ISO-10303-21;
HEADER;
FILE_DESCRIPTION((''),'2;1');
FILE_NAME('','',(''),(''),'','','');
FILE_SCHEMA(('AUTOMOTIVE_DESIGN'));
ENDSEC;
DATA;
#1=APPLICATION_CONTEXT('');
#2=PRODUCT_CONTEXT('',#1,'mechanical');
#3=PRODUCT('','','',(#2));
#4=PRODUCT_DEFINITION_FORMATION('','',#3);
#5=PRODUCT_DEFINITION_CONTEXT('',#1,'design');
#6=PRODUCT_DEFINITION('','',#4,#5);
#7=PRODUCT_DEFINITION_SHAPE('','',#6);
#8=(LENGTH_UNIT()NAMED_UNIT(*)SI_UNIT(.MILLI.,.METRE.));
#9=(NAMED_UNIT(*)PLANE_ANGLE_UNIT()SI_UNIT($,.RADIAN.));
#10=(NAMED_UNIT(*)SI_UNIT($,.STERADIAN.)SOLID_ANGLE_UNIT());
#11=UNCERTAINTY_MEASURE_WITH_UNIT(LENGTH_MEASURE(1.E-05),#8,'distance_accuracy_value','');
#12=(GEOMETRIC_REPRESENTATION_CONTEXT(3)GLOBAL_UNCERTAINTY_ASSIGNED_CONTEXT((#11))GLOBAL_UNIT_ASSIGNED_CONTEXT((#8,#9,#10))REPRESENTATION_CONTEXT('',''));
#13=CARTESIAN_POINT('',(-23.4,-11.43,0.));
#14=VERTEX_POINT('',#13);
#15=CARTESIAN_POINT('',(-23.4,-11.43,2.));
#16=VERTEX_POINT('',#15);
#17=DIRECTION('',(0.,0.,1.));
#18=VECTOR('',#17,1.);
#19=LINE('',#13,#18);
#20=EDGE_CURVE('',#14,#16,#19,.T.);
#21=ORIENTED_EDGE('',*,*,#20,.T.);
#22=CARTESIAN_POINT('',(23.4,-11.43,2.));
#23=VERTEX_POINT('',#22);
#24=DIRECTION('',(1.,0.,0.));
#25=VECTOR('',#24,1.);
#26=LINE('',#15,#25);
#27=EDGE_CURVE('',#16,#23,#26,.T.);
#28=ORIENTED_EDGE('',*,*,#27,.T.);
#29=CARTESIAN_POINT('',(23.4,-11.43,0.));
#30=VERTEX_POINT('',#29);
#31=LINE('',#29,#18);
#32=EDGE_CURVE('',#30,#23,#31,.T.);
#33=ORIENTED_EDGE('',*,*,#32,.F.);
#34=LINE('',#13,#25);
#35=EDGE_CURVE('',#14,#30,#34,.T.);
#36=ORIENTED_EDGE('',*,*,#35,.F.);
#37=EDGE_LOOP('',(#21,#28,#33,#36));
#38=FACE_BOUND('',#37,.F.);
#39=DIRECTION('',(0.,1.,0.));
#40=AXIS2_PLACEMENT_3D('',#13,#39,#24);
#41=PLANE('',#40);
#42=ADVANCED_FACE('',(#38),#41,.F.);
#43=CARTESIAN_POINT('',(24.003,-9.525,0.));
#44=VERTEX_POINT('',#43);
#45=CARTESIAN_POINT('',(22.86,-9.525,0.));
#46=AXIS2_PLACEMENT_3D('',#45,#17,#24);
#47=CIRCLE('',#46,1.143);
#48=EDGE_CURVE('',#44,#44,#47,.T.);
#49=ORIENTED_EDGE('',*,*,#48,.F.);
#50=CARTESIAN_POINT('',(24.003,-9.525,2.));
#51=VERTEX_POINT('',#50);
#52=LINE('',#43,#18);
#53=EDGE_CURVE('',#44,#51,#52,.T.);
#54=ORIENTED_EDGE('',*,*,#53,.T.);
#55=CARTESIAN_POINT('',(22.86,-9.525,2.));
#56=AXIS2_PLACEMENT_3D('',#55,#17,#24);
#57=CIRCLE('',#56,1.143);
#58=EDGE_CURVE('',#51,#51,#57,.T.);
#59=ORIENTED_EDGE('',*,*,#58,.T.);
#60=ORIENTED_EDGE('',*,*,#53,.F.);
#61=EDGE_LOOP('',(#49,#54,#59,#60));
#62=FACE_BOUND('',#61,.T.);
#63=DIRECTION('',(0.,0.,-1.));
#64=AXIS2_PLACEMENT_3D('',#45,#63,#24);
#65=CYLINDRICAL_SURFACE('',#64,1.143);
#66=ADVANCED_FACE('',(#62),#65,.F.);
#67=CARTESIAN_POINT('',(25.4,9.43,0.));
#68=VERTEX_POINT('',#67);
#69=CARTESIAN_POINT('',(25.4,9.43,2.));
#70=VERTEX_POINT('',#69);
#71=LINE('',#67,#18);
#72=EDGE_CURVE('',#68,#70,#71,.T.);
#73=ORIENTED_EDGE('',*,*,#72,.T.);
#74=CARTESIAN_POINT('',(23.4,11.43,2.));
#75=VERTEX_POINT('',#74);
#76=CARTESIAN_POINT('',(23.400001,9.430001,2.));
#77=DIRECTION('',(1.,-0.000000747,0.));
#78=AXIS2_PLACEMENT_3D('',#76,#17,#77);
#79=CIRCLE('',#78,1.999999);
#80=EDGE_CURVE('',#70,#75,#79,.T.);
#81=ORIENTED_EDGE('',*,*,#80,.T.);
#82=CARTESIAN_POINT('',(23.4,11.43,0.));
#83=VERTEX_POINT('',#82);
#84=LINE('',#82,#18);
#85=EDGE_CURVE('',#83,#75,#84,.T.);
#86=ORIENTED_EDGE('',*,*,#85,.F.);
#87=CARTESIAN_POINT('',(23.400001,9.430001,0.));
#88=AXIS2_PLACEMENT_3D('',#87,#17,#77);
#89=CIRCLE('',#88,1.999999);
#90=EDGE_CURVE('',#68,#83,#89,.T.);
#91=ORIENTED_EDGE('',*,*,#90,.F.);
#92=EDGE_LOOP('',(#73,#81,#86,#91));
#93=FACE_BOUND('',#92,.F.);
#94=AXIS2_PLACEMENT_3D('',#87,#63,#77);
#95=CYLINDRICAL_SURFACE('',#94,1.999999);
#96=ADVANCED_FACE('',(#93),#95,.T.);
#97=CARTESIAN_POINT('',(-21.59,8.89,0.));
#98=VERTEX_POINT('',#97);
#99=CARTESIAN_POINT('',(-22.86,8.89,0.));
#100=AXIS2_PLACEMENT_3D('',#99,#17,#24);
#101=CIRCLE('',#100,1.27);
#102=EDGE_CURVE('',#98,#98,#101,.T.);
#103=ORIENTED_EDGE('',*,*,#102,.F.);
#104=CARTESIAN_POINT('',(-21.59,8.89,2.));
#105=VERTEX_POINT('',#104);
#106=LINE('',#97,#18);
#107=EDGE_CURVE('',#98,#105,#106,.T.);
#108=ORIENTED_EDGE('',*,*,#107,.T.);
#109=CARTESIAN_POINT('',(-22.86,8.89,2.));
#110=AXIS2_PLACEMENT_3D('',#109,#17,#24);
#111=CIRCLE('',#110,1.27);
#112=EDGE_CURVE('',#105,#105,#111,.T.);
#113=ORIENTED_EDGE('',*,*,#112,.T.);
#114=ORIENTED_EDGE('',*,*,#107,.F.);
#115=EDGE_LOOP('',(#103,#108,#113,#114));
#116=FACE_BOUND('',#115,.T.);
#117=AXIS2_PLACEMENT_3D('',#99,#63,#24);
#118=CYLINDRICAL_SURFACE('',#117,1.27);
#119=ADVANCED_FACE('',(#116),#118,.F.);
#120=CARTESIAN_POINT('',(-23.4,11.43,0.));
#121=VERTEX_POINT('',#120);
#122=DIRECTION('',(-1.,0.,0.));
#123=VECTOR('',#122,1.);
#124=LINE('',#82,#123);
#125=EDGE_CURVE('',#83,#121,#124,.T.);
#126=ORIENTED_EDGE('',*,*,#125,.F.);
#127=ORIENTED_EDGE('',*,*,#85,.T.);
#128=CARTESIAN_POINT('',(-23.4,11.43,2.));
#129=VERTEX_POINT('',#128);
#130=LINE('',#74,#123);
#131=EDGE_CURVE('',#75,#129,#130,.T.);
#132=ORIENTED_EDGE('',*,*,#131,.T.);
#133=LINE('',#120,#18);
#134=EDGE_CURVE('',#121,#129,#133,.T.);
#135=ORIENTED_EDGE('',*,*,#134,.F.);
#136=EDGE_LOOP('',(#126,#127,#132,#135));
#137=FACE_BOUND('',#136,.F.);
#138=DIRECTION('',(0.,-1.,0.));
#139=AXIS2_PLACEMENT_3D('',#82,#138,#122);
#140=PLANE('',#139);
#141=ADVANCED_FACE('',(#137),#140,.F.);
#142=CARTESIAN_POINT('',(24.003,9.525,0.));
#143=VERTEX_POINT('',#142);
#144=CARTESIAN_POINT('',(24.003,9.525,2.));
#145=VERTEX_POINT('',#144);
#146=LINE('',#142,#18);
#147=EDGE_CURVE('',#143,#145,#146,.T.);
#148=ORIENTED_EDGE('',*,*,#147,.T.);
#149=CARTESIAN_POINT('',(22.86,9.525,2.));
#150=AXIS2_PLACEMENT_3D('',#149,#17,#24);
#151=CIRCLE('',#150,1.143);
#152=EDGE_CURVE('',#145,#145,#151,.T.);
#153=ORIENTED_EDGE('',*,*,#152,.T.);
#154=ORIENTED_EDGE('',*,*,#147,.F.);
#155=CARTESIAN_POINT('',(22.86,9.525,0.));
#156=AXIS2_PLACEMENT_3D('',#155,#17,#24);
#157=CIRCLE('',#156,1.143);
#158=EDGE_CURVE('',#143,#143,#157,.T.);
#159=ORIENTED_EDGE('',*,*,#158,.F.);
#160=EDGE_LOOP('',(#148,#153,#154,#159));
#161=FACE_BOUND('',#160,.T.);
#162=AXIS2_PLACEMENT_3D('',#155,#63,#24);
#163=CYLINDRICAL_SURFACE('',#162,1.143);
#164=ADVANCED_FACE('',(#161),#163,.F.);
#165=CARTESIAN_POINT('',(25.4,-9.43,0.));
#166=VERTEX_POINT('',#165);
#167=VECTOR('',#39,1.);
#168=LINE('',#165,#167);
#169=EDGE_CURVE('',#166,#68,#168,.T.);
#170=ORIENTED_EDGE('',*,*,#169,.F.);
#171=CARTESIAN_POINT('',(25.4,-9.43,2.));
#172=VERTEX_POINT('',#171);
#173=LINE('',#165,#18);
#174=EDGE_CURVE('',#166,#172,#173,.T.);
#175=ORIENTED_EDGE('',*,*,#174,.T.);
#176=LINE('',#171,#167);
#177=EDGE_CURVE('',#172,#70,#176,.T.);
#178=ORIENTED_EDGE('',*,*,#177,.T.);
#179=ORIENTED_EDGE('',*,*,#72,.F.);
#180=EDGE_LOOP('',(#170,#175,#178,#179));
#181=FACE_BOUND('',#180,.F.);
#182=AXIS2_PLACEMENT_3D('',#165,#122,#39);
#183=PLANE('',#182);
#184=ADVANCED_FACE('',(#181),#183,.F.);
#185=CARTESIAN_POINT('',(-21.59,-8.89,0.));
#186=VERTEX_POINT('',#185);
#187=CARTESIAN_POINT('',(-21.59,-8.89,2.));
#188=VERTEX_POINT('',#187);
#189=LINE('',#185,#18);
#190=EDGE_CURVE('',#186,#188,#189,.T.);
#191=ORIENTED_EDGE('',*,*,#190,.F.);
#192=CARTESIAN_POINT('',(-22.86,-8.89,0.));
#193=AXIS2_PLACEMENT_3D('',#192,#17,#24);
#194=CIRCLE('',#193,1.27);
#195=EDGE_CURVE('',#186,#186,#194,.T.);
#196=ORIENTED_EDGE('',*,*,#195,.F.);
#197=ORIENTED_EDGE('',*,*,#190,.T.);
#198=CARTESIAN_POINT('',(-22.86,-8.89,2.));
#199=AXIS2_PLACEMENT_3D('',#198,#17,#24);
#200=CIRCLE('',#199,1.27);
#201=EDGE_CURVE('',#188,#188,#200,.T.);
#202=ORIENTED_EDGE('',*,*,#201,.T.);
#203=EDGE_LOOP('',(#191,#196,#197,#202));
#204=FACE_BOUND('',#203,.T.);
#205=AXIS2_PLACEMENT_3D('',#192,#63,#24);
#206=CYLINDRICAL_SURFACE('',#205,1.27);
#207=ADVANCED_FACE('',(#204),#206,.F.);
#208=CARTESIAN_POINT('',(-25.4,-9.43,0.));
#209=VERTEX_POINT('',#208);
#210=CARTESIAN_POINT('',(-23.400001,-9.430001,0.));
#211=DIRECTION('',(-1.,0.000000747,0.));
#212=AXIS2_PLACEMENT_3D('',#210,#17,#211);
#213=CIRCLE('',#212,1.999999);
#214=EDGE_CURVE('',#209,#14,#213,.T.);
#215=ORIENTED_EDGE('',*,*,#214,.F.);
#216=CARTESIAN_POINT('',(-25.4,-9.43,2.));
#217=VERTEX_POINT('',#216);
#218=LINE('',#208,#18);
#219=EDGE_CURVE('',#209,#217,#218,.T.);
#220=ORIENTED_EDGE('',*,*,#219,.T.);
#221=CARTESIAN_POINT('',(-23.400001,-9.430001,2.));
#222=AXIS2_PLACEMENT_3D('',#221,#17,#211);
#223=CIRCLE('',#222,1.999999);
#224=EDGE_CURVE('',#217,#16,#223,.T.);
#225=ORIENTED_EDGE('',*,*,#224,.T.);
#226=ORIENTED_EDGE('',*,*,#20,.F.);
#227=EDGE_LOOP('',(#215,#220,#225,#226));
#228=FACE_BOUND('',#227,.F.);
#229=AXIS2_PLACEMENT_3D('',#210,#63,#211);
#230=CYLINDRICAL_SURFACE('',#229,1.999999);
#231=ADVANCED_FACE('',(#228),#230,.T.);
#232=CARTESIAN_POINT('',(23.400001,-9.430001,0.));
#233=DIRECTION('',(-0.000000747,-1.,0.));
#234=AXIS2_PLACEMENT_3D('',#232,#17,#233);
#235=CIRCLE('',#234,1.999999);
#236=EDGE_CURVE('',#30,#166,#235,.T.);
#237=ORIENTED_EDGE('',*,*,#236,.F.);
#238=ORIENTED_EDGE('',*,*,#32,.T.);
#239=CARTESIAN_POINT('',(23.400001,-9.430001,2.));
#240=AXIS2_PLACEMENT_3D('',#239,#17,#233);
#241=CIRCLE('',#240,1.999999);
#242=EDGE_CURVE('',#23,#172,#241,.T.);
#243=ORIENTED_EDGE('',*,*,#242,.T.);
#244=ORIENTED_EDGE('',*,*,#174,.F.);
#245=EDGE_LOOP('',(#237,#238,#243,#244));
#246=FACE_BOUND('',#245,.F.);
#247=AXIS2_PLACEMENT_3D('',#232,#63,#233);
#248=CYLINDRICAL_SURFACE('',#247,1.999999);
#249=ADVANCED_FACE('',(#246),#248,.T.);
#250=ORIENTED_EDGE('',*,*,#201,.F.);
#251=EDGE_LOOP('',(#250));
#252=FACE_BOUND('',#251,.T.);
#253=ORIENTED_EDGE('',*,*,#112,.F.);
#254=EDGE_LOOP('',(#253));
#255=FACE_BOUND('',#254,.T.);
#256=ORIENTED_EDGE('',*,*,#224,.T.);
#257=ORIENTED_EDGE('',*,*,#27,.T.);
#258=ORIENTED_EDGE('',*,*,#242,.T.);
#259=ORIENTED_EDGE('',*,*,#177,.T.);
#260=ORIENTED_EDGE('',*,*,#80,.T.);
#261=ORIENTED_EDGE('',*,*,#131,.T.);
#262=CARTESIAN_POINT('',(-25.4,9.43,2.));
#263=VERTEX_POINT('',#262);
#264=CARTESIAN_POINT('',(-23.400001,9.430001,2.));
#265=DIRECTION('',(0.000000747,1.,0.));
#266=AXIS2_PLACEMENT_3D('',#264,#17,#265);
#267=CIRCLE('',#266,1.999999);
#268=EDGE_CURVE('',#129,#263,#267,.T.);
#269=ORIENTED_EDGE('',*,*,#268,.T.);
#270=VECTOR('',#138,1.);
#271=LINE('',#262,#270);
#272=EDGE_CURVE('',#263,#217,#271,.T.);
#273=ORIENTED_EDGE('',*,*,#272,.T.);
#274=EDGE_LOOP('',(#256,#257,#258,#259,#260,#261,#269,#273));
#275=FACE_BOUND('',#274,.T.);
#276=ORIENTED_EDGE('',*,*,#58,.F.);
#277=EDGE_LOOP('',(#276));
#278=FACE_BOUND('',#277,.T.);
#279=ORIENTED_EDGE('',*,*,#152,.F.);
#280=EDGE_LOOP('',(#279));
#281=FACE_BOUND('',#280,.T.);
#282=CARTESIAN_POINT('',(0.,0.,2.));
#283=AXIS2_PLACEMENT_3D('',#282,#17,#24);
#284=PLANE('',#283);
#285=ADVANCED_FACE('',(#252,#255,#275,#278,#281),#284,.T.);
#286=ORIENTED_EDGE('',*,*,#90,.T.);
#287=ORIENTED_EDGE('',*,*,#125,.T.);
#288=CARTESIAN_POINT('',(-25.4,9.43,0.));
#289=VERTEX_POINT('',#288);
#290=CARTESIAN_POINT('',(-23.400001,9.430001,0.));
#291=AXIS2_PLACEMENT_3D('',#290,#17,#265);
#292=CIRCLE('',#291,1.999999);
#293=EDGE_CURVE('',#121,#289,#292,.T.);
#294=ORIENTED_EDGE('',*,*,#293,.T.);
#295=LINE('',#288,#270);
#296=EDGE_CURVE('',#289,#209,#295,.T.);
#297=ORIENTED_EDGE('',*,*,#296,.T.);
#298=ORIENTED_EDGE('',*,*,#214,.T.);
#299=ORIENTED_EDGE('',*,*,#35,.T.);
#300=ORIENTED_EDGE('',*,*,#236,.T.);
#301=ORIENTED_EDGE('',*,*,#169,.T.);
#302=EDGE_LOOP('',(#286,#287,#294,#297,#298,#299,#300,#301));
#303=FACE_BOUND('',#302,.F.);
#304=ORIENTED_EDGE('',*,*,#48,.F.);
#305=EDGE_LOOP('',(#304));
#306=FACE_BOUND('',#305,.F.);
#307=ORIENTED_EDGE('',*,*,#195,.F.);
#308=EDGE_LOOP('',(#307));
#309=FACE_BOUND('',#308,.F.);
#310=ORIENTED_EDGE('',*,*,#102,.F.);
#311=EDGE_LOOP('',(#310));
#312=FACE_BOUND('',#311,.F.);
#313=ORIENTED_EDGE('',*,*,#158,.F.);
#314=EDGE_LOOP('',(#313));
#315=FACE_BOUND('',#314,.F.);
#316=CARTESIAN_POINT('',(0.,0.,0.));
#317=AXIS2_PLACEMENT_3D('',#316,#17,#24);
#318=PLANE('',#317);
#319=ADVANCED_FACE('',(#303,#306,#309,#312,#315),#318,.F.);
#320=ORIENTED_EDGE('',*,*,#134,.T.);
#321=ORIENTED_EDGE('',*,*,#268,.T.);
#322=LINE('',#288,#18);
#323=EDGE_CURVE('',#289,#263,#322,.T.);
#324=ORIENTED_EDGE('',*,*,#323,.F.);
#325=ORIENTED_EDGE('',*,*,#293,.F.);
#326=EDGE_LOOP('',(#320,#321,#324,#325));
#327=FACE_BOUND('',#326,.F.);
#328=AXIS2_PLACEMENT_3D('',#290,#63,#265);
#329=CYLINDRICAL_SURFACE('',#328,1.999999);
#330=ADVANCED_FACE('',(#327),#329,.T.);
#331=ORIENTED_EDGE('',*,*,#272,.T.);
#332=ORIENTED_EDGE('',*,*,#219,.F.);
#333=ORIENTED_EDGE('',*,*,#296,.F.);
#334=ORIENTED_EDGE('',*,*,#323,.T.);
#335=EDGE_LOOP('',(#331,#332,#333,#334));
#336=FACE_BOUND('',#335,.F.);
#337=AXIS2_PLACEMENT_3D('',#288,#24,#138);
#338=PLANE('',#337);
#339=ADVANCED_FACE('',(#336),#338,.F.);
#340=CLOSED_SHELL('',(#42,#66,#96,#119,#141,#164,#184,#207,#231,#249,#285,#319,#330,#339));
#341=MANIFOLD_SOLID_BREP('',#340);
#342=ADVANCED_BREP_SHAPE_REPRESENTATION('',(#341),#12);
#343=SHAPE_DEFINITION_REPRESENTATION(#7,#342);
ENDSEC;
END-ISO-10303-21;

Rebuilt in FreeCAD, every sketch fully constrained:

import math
import FreeCAD as App
import Part
import Sketcher

V = App.Vector

doc = App.newDocument("Part")
body = doc.addObject("PartDesign::Body", "Body")

# Sketch on XY plane
sketch1 = body.newObject("Sketcher::SketchObject", "Sketch")
sketch1.AttachmentSupport = (doc.getObject("XY_Plane"), [""])
sketch1.MapMode = "FlatFace"
sketch1.addGeometry(Part.LineSegment(V(23.4, 11.4, 0), V(-23.4, 11.4, 0)), False)
sketch1.addGeometry(Part.ArcOfCircle(Part.Circle(V(-23.4, 9.4, 0), V(0, 0, 1), 2), math.radians(90), math.radians(180)), False)
sketch1.addGeometry(Part.LineSegment(V(-25.4, 9.4, 0), V(-25.4, -9.4, 0)), False)
sketch1.addGeometry(Part.ArcOfCircle(Part.Circle(V(-23.4, -9.4, 0), V(0, 0, 1), 2), math.radians(180), math.radians(270)), False)
sketch1.addGeometry(Part.LineSegment(V(-23.4, -11.4, 0), V(23.4, -11.4, 0)), False)
sketch1.addGeometry(Part.ArcOfCircle(Part.Circle(V(23.4, -9.4, 0), V(0, 0, 1), 2), math.radians(-90), math.radians(0)), False)
sketch1.addGeometry(Part.LineSegment(V(25.4, -9.4, 0), V(25.4, 9.4, 0)), False)
sketch1.addGeometry(Part.ArcOfCircle(Part.Circle(V(23.4, 9.4, 0), V(0, 0, 1), 2), math.radians(0), math.radians(90)), False)
sketch1.addGeometry(Part.Circle(V(-22.9, -8.9, 0), V(0, 0, 1), 1.3), False)
sketch1.addGeometry(Part.Circle(V(22.9, -9.5, 0), V(0, 0, 1), 1.1), False)
sketch1.addGeometry(Part.Circle(V(-22.9, 8.9, 0), V(0, 0, 1), 1.3), False)
sketch1.addGeometry(Part.Circle(V(22.9, 9.5, 0), V(0, 0, 1), 1.1), False)
sketch1.addConstraint(Sketcher.Constraint("Tangent", 0, 2, 1, 1))
sketch1.addConstraint(Sketcher.Constraint("Tangent", 1, 2, 2, 1))
sketch1.addConstraint(Sketcher.Constraint("Tangent", 2, 2, 3, 1))
sketch1.addConstraint(Sketcher.Constraint("Tangent", 3, 2, 4, 1))
sketch1.addConstraint(Sketcher.Constraint("Tangent", 4, 2, 5, 1))
sketch1.addConstraint(Sketcher.Constraint("Tangent", 5, 2, 6, 1))
sketch1.addConstraint(Sketcher.Constraint("Tangent", 6, 2, 7, 1))
sketch1.addConstraint(Sketcher.Constraint("Tangent", 7, 2, 0, 1))
sketch1.addConstraint(Sketcher.Constraint("Horizontal", 0))
sketch1.addConstraint(Sketcher.Constraint("Vertical", 2))
sketch1.addConstraint(Sketcher.Constraint("Horizontal", 4))
sketch1.addConstraint(Sketcher.Constraint("Vertical", 6))
sketch1.addConstraint(Sketcher.Constraint("Equal", 1, 3))
sketch1.addConstraint(Sketcher.Constraint("Equal", 3, 5))
sketch1.addConstraint(Sketcher.Constraint("Equal", 5, 7))
sketch1.addConstraint(Sketcher.Constraint("Equal", 8, 10))
sketch1.addConstraint(Sketcher.Constraint("Equal", 9, 11))
sketch1.addConstraint(Sketcher.Constraint("Symmetric", 1, 3, 5, 3, -1, 1))
sketch1.addConstraint(Sketcher.Constraint("Symmetric", 8, 3, 10, 3, -1))
sketch1.addConstraint(Sketcher.Constraint("Symmetric", 9, 3, 11, 3, -1))
sketch1.addConstraint(Sketcher.Constraint("Radius", 1, 1.999999))
sketch1.addConstraint(Sketcher.Constraint("Diameter", 8, 2.54))
sketch1.addConstraint(Sketcher.Constraint("Diameter", 9, 2.286))
sketch1.addConstraint(Sketcher.Constraint("DistanceX", 0, 2, 0, 1, 46.8))
sketch1.addConstraint(Sketcher.Constraint("DistanceY", 2, 2, 2, 1, 18.86))
sketch1.addConstraint(Sketcher.Constraint("DistanceX", 8, 3, -1, 1, 22.86))
sketch1.addConstraint(Sketcher.Constraint("DistanceY", 8, 3, -1, 1, 8.89))
sketch1.addConstraint(Sketcher.Constraint("DistanceX", -1, 1, 9, 3, 22.86))
sketch1.addConstraint(Sketcher.Constraint("DistanceY", 9, 3, 11, 3, 19.05))
pad1 = body.newObject("PartDesign::Pad", "Pad")
pad1.Profile = sketch1
pad1.Length = 2

doc.recompute()
